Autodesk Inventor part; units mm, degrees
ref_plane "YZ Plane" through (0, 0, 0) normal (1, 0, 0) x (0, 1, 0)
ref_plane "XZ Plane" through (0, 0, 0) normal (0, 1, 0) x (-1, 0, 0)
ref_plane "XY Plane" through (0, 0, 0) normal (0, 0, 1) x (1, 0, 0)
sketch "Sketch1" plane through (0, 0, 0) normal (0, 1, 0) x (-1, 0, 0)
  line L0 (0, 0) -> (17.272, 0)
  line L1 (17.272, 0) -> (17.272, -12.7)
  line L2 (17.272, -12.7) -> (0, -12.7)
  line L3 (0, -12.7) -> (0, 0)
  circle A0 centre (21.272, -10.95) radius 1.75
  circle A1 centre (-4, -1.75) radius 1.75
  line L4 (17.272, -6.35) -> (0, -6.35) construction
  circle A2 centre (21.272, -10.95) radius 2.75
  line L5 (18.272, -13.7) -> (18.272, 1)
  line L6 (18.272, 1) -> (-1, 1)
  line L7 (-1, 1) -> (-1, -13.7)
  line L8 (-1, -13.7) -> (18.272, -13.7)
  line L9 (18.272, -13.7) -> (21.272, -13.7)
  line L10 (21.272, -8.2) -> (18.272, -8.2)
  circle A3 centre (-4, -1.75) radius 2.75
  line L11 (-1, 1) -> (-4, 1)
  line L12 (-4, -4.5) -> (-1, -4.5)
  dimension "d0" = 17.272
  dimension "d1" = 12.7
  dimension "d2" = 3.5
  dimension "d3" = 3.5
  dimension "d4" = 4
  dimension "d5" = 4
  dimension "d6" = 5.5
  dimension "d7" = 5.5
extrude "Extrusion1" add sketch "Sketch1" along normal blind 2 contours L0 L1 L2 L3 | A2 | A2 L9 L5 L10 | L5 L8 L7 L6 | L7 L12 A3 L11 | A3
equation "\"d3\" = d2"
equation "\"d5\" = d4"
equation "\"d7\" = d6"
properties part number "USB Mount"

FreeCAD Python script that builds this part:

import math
import FreeCAD as App
import Part
import Sketcher
Q = App.Units.Quantity

doc = App.newDocument("Part")
body = doc.addObject("PartDesign::Body", "Body")

sketch1 = body.newObject("Sketcher::SketchObject", "Sketch")
sketch1.AttachmentSupport = (doc.getObject("XZ_Plane"), [""])
sketch1.MapMode = "FlatFace"
sketch1.addGeometry([
    Part.LineSegment(App.Vector(1, -13.7, 0), App.Vector(-21.3, -13.7, 0)),
    Part.ArcOfCircle(Part.Circle(App.Vector(-21.3, -10.9, 0), App.Vector(0, 0, 1), 2.8), math.radians(90), math.radians(270)),
    Part.LineSegment(App.Vector(-21.3, -8.2, 0), App.Vector(-18.3, -8.2, 0)),
    Part.LineSegment(App.Vector(-18.3, -8.2, 0), App.Vector(-18.3, 1, 0)),
    Part.LineSegment(App.Vector(-18.3, 1, 0), App.Vector(4, 1, 0)),
    Part.ArcOfCircle(Part.Circle(App.Vector(4, -1.8, 0), App.Vector(0, 0, 1), 2.8), math.radians(-90), math.radians(90)),
    Part.LineSegment(App.Vector(4, -4.5, 0), App.Vector(1, -4.5, 0)),
    Part.LineSegment(App.Vector(1, -4.5, 0), App.Vector(1, -13.7, 0)),
    Part.Circle(App.Vector(-21.3, -10.9, 0), App.Vector(0, 0, 1), 1.8),
    Part.Circle(App.Vector(4, -1.8, 0), App.Vector(0, 0, 1), 1.8),
], False)
sketch1.addConstraint([
    Sketcher.Constraint("Tangent", 0, 2, 1, 2),
    Sketcher.Constraint("Tangent", 1, 1, 2, 1),
    Sketcher.Constraint("Coincident", 2, 2, 3, 1),
    Sketcher.Constraint("Coincident", 3, 2, 4, 1),
    Sketcher.Constraint("Tangent", 4, 2, 5, 2),
    Sketcher.Constraint("Tangent", 5, 1, 6, 1),
    Sketcher.Constraint("Coincident", 6, 2, 7, 1),
    Sketcher.Constraint("Coincident", 7, 2, 0, 1),
    Sketcher.Constraint("Horizontal", 0),
    Sketcher.Constraint("Horizontal", 2),
    Sketcher.Constraint("Vertical", 3),
    Sketcher.Constraint("Horizontal", 4),
    Sketcher.Constraint("Horizontal", 6),
    Sketcher.Constraint("Vertical", 7),
    Sketcher.Constraint("Coincident", 8, 3, 1, 3),
    Sketcher.Constraint("Coincident", 9, 3, 5, 3),
    Sketcher.Constraint("Equal", 1, 5),
    Sketcher.Constraint("Equal", 8, 9),
    Sketcher.Constraint("Equal", 0, 4),
    Sketcher.Constraint("Diameter", 8, Q("3.5 mm")),
    Sketcher.Constraint("Radius", 1, Q("2.75 mm")),
    Sketcher.Constraint("DistanceX", -1, 1, 5, 3, Q("4 mm")),
    Sketcher.Constraint("DistanceX", 2, 1, 2, 2, Q("3 mm")),
    Sketcher.Constraint("DistanceY", 3, 1, 3, 2, Q("9.2 mm")),
    Sketcher.Constraint("DistanceY", -1, 1, 3, 2, Q("1 mm")),
    Sketcher.Constraint("DistanceX", 0, 2, 0, 1, Q("22.272 mm")),
])
pad1 = body.newObject("PartDesign::Pad", "Pad")
pad1.Profile = sketch1
pad1.Length = 2
pad1.Reversed = True

doc.recompute()
